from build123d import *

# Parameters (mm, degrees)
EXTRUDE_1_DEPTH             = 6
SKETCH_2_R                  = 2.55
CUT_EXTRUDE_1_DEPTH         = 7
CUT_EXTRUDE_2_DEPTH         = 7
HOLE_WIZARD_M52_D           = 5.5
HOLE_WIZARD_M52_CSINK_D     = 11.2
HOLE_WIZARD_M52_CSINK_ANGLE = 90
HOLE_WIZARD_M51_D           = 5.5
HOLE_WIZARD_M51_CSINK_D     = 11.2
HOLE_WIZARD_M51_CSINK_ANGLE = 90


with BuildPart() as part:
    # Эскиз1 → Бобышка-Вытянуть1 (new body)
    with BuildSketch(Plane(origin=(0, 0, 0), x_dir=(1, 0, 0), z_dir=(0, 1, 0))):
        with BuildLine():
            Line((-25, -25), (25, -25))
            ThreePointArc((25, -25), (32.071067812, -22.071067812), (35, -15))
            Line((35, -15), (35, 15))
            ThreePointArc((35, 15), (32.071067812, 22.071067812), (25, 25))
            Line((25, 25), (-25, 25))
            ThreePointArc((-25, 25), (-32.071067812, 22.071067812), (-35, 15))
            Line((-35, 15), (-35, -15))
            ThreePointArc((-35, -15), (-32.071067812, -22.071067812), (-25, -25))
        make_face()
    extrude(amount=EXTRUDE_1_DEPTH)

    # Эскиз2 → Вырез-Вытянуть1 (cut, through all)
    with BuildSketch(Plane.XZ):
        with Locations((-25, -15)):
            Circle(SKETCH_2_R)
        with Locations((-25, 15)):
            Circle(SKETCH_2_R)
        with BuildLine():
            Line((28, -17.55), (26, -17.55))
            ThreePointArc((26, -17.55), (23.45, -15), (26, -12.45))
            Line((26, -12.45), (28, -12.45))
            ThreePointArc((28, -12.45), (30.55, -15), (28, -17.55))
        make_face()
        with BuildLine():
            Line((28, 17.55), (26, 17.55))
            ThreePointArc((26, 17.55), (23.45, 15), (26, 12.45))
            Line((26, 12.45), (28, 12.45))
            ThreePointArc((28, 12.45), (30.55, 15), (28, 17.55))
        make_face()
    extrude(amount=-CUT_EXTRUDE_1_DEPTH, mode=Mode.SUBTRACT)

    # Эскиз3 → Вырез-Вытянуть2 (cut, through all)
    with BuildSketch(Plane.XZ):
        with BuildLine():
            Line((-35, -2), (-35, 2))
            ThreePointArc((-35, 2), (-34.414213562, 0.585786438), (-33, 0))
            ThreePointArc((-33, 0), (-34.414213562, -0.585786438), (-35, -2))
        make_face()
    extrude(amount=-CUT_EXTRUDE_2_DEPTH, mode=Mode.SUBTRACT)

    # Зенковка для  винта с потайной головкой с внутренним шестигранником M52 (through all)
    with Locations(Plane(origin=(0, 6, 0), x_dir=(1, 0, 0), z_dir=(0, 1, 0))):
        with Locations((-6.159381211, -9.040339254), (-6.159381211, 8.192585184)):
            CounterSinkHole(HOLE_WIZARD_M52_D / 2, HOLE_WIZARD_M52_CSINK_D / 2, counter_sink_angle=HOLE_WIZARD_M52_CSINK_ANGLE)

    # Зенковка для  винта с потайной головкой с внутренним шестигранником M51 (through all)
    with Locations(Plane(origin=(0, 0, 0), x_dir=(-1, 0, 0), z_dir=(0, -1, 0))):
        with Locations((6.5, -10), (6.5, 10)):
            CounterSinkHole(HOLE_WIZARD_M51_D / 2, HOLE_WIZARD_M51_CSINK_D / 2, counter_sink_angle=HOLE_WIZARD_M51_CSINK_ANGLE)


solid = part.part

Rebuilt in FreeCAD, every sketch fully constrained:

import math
import FreeCAD as App
import Part
import Sketcher

V = App.Vector
Q = App.Units.Quantity

doc = App.newDocument("Part")
body = doc.addObject("PartDesign::Body", "Body")

# Sketch on XZ plane
sketch1 = body.newObject("Sketcher::SketchObject", "Sketch")
sketch1.AttachmentSupport = (doc.getObject("XZ_Plane"), [""])
sketch1.MapMode = "FlatFace"
sketch1.addGeometry(Part.LineSegment(V(-25, 25, 0), V(25, 25, 0)), False)
sketch1.addGeometry(Part.ArcOfCircle(Part.Circle(V(25, 15, 0), V(0, 0, 1), 10), math.radians(0), math.radians(90)), False)
sketch1.addGeometry(Part.LineSegment(V(35, 15, 0), V(35, -15, 0)), False)
sketch1.addGeometry(Part.ArcOfCircle(Part.Circle(V(25, -15, 0), V(0, 0, 1), 10), math.radians(-90), math.radians(0)), False)
sketch1.addGeometry(Part.LineSegment(V(25, -25, 0), V(-25, -25, 0)), False)
sketch1.addGeometry(Part.ArcOfCircle(Part.Circle(V(-25, -15, 0), V(0, 0, 1), 10), math.radians(180), math.radians(270)), False)
sketch1.addGeometry(Part.LineSegment(V(-35, -15, 0), V(-35, 15, 0)), False)
sketch1.addGeometry(Part.ArcOfCircle(Part.Circle(V(-25, 15, 0), V(0, 0, 1), 10), math.radians(90), math.radians(180)), False)
sketch1.addConstraint(Sketcher.Constraint("Tangent", 0, 2, 1, 2))
sketch1.addConstraint(Sketcher.Constraint("Tangent", 1, 1, 2, 1))
sketch1.addConstraint(Sketcher.Constraint("Tangent", 2, 2, 3, 2))
sketch1.addConstraint(Sketcher.Constraint("Tangent", 3, 1, 4, 1))
sketch1.addConstraint(Sketcher.Constraint("Tangent", 4, 2, 5, 2))
sketch1.addConstraint(Sketcher.Constraint("Tangent", 5, 1, 6, 1))
sketch1.addConstraint(Sketcher.Constraint("Tangent", 6, 2, 7, 2))
sketch1.addConstraint(Sketcher.Constraint("Tangent", 7, 1, 0, 1))
sketch1.addConstraint(Sketcher.Constraint("Horizontal", 0))
sketch1.addConstraint(Sketcher.Constraint("Vertical", 2))
sketch1.addConstraint(Sketcher.Constraint("Horizontal", 4))
sketch1.addConstraint(Sketcher.Constraint("Vertical", 6))
sketch1.addConstraint(Sketcher.Constraint("Equal", 1, 3))
sketch1.addConstraint(Sketcher.Constraint("Equal", 3, 5))
sketch1.addConstraint(Sketcher.Constraint("Equal", 5, 7))
sketch1.addConstraint(Sketcher.Constraint("Symmetric", 1, 3, 5, 3, -1, 1))
sketch1.addConstraint(Sketcher.Constraint("Radius", 1, Q("10 mm")))
sketch1.addConstraint(Sketcher.Constraint("DistanceX", 0, 1, 0, 2, Q("50 mm")))
sketch1.addConstraint(Sketcher.Constraint("DistanceY", 2, 2, 2, 1, Q("30 mm")))
pad1 = body.newObject("PartDesign::Pad", "Pad")
pad1.Profile = sketch1
pad1.Length = 6
pad1.Reversed = True

# Sketch on XZ plane
sketch2 = body.newObject("Sketcher::SketchObject", "Sketch001")
sketch2.AttachmentSupport = (doc.getObject("XZ_Plane"), [""])
sketch2.MapMode = "FlatFace"
sketch2.addGeometry(Part.Circle(V(-25, -15, 0), V(0, 0, 1), 2.5), False)
sketch2.addGeometry(Part.Circle(V(-25, 15, 0), V(0, 0, 1), 2.5), False)
sketch2.addGeometry(Part.LineSegment(V(26, -17.6, 0), V(28, -17.6, 0)), False)
sketch2.addGeometry(Part.ArcOfCircle(Part.Circle(V(28, -15, 0), V(0, 0, 1), 2.5), math.radians(-90), math.radians(90)), False)
sketch2.addGeometry(Part.LineSegment(V(28, -12.4, 0), V(26, -12.4, 0)), False)
sketch2.addGeometry(Part.ArcOfCircle(Part.Circle(V(26, -15, 0), V(0, 0, 1), 2.5), math.radians(90), math.radians(270)), False)
sketch2.addGeometry(Part.LineSegment(V(28, 17.6, 0), V(26, 17.6, 0)), False)
sketch2.addGeometry(Part.ArcOfCircle(Part.Circle(V(26, 15, 0), V(0, 0, 1), 2.5), math.radians(90), math.radians(270)), False)
sketch2.addGeometry(Part.LineSegment(V(26, 12.4, 0), V(28, 12.4, 0)), False)
sketch2.addGeometry(Part.ArcOfCircle(Part.Circle(V(28, 15, 0), V(0, 0, 1), 2.5), math.radians(-90), math.radians(90)), False)
sketch2.addConstraint(Sketcher.Constraint("Tangent", 2, 2, 3, 1))
sketch2.addConstraint(Sketcher.Constraint("Tangent", 3, 2, 4, 1))
sketch2.addConstraint(Sketcher.Constraint("Tangent", 4, 2, 5, 1))
sketch2.addConstraint(Sketcher.Constraint("Tangent", 5, 2, 2, 1))
sketch2.addConstraint(Sketcher.Constraint("Tangent", 6, 2, 7, 1))
sketch2.addConstraint(Sketcher.Constraint("Tangent", 7, 2, 8, 1))
sketch2.addConstraint(Sketcher.Constraint("Tangent", 8, 2, 9, 1))
sketch2.addConstraint(Sketcher.Constraint("Tangent", 9, 2, 6, 1))
sketch2.addConstraint(Sketcher.Constraint("Horizontal", 2))
sketch2.addConstraint(Sketcher.Constraint("Horizontal", 4))
sketch2.addConstraint(Sketcher.Constraint("Horizontal", 6))
sketch2.addConstraint(Sketcher.Constraint("Horizontal", 8))
sketch2.addConstraint(Sketcher.Constraint("Equal", 0, 1))
sketch2.addConstraint(Sketcher.Constraint("Equal", 1, 3))
sketch2.addConstraint(Sketcher.Constraint("Equal", 5, 7))
sketch2.addConstraint(Sketcher.Constraint("Symmetric", 0, 3, 1, 3, -1))
sketch2.addConstraint(Sketcher.Constraint("Symmetric", 5, 3, 7, 3, -1))
sketch2.addConstraint(Sketcher.Constraint("Horizontal", 0, 3, 3, 3))
sketch2.addConstraint(Sketcher.Constraint("Vertical", 3, 3, 9, 3))
sketch2.addConstraint(Sketcher.Constraint("Diameter", 0, Q("5.1 mm")))
sketch2.addConstraint(Sketcher.Constraint("DistanceX", 2, 1, 2, 2, Q("2 mm")))
sketch2.addConstraint(Sketcher.Constraint("DistanceX", 0, 3, -1, 1, Q("25 mm")))
sketch2.addConstraint(Sketcher.Constraint("DistanceY", 0, 3, -1, 1, Q("15 mm")))
sketch2.addConstraint(Sketcher.Constraint("DistanceX", -1, 1, 3, 3, Q("28 mm")))
pocket1 = body.newObject("PartDesign::Pocket", "Pocket")
pocket1.Profile = sketch2
pocket1.Type = "ThroughAll"

# Sketch on XZ plane
sketch3 = body.newObject("Sketcher::SketchObject", "Sketch002")
sketch3.AttachmentSupport = (doc.getObject("XZ_Plane"), [""])
sketch3.MapMode = "FlatFace"
sketch3.addGeometry(Part.LineSegment(V(-35, 2, 0), V(-35, -2, 0)), False)
sketch3.addGeometry(Part.ArcOfCircle(Part.Circle(V(-33, -2, 0), V(0, 0, 1), 2), math.radians(90), math.radians(180)), False)
sketch3.addGeometry(Part.ArcOfCircle(Part.Circle(V(-33, 2, 0), V(0, 0, 1), 2), math.radians(-180), math.radians(-90)), False)
sketch3.addConstraint(Sketcher.Constraint("Tangent", 0, 2, 1, 2))
sketch3.addConstraint(Sketcher.Constraint("Tangent", 1, 1, 2, 2))
sketch3.addConstraint(Sketcher.Constraint("Tangent", 2, 1, 0, 1))
sketch3.addConstraint(Sketcher.Constraint("Vertical", 0))
sketch3.addConstraint(Sketcher.Constraint("Equal", 1, 2))
sketch3.addConstraint(Sketcher.Constraint("PointOnObject", 1, 1, -1))
sketch3.addConstraint(Sketcher.Constraint("Radius", 1, Q("2 mm")))
sketch3.addConstraint(Sketcher.Constraint("DistanceX", 1, 3, -1, 1, Q("33 mm")))
pocket2 = body.newObject("PartDesign::Pocket", "Pocket001")
pocket2.Profile = sketch3
pocket2.Type = "ThroughAll"

# Sketch on XZ plane
sketch4 = body.newObject("Sketcher::SketchObject", "Sketch003")
sketch4.AttachmentSupport = (doc.getObject("XZ_Plane"), [""])
sketch4.MapMode = "FlatFace"
sketch4.AttachmentOffset = App.Placement(V(0, 0, -6), App.Rotation())
sketch4.addGeometry(Part.Circle(V(-6.2, 9, 0), V(0, 0, 1), 2.8), False)
sketch4.addGeometry(Part.Circle(V(-6.2, -8.2, 0), V(0, 0, 1), 2.8), False)
sketch4.addConstraint(Sketcher.Constraint("Equal", 0, 1))
sketch4.addConstraint(Sketcher.Constraint("Vertical", 0, 3, 1, 3))
sketch4.addConstraint(Sketcher.Constraint("Diameter", 0, Q("5.5 mm")))
sketch4.addConstraint(Sketcher.Constraint("DistanceX", 0, 3, -1, 1, Q("6.159381 mm")))
sketch4.addConstraint(Sketcher.Constraint("DistanceY", -1, 1, 0, 3, Q("9.040339 mm")))
sketch4.addConstraint(Sketcher.Constraint("DistanceY", 1, 3, -1, 1, Q("8.192585 mm")))
doc.recompute()
hole = body.newObject("PartDesign::Hole", "Hole")
hole.Profile = sketch4
hole.ThreadType = "None"
hole.Diameter = 5.5
hole.DepthType = "ThroughAll"
hole.HoleCutType = "Countersink"
hole.HoleCutDiameter = 11.2
hole.HoleCutCountersinkAngle = 90
hole.Reversed = True

# Sketch on XZ plane
sketch5 = body.newObject("Sketcher::SketchObject", "Sketch004")
sketch5.AttachmentSupport = (doc.getObject("XZ_Plane"), [""])
sketch5.MapMode = "FlatFace"
sketch5.addGeometry(Part.Circle(V(-6.5, 10, 0), V(0, 0, 1), 2.8), False)
sketch5.addGeometry(Part.Circle(V(-6.5, -10, 0), V(0, 0, 1), 2.8), False)
sketch5.addConstraint(Sketcher.Constraint("Equal", 0, 1))
sketch5.addConstraint(Sketcher.Constraint("Symmetric", 0, 3, 1, 3, -1))
sketch5.addConstraint(Sketcher.Constraint("Diameter", 0, Q("5.5 mm")))
sketch5.addConstraint(Sketcher.Constraint("DistanceY", -1, 1, 0, 3, Q("10 mm")))
sketch5.addConstraint(Sketcher.Constraint("DistanceX", 0, 3, -1, 1, Q("6.5 mm")))
doc.recompute()
hole2 = body.newObject("PartDesign::Hole", "Hole001")
hole2.Profile = sketch5
hole2.ThreadType = "None"
hole2.Diameter = 5.5
hole2.DepthType = "ThroughAll"
hole2.HoleCutType = "Countersink"
hole2.HoleCutDiameter = 11.2
hole2.HoleCutCountersinkAngle = 90

doc.recompute()
